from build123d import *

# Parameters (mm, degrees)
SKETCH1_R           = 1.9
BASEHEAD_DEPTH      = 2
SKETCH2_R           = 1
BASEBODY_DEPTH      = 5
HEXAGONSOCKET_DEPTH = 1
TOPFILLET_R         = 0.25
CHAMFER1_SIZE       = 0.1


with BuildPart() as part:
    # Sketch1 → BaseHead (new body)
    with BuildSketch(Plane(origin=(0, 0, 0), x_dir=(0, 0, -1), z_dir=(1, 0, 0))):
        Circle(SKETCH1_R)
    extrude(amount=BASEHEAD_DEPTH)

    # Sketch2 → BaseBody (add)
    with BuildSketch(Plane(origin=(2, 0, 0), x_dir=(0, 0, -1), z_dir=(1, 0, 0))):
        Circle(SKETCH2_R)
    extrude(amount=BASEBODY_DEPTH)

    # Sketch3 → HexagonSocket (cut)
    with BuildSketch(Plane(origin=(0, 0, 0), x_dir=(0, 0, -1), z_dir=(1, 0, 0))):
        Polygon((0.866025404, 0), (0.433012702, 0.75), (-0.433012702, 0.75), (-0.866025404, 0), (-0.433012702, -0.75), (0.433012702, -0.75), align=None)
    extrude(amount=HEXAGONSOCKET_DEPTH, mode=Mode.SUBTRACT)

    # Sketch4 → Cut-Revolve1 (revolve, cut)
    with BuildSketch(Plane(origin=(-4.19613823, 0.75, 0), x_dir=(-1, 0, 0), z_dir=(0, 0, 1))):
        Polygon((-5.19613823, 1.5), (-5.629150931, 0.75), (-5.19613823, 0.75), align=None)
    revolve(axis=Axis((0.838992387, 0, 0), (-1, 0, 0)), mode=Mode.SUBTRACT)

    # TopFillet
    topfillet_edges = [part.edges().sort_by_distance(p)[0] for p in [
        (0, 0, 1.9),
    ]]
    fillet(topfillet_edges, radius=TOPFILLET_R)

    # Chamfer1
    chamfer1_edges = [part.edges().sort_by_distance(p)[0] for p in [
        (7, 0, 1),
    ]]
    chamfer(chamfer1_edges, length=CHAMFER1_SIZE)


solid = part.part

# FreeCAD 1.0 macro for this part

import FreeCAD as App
import Part
import Sketcher
Q = App.Units.Quantity


def edges_at(feature, points):
    """Names of the edges that pass closest to the given points."""
    edges = feature.Shape.Edges
    near = lambda p: min(range(len(edges)), key=lambda i: edges[i].distToShape(Part.Vertex(*p))[0])
    return sorted({f"Edge{near(p) + 1}" for p in points})


def add_polygon(sketch, points):
    """Adds a closed chain of lines whose ends are joined by coincident constraints."""
    first, n = sketch.GeometryCount, len(points)
    for a, b in zip(points, points[1:] + points[:1]):
        sketch.addGeometry(Part.LineSegment(App.Vector(*a, 0), App.Vector(*b, 0)), False)
    for i in range(n):
        sketch.addConstraint(Sketcher.Constraint("Coincident", first + i, 2, first + (i + 1) % n, 1))

doc = App.newDocument("Part")
body = doc.addObject("PartDesign::Body", "Body")

# Sketch on YZ plane
sketch1 = body.newObject("Sketcher::SketchObject", "Sketch")
sketch1.AttachmentSupport = (doc.getObject("YZ_Plane"), [""])
sketch1.MapMode = "FlatFace"
sketch1.addGeometry(Part.Circle(App.Vector(0, 0, 0), App.Vector(0, 0, 1), 1.9), False)
sketch1.addConstraint(Sketcher.Constraint("Coincident", 0, 3, -1, 1))
sketch1.addConstraint(Sketcher.Constraint("Diameter", 0, Q("3.8 mm")))
pad1 = body.newObject("PartDesign::Pad", "Pad")
pad1.Profile = sketch1
pad1.Length = 2

# Sketch on YZ plane
sketch2 = body.newObject("Sketcher::SketchObject", "Sketch001")
sketch2.AttachmentSupport = (doc.getObject("YZ_Plane"), [""])
sketch2.MapMode = "FlatFace"
sketch2.AttachmentOffset = App.Placement(App.Vector(0, 0, 2), App.Rotation())
sketch2.addGeometry(Part.Circle(App.Vector(0, 0, 0), App.Vector(0, 0, 1), 1), False)
sketch2.addConstraint(Sketcher.Constraint("Coincident", 0, 3, -1, 1))
sketch2.addConstraint(Sketcher.Constraint("Diameter", 0, Q("2 mm")))
pad2 = body.newObject("PartDesign::Pad", "Pad001")
pad2.Profile = sketch2
pad2.Length = 5

# Sketch on YZ plane
sketch3 = body.newObject("Sketcher::SketchObject", "Sketch002")
sketch3.AttachmentSupport = (doc.getObject("YZ_Plane"), [""])
sketch3.MapMode = "FlatFace"
add_polygon(sketch3, [(0, -0.9), (0.8, -0.4), (0.8, 0.4), (0, 0.9), (-0.8, 0.4), (-0.8, -0.4)])  # lines 0-5
sketch3.addConstraint(Sketcher.Constraint("Vertical", 1))
sketch3.addConstraint(Sketcher.Constraint("Vertical", 4))
sketch3.addConstraint(Sketcher.Constraint("Symmetric", 0, 2, 3, 2, -1, 1))
sketch3.addConstraint(Sketcher.Constraint("Symmetric", 2, 2, 5, 2, -1, 1))
sketch3.addConstraint(Sketcher.Constraint("PointOnObject", 2, 2, -2))
sketch3.addConstraint(Sketcher.Constraint("Parallel", 2, 5))
sketch3.addConstraint(Sketcher.Constraint("Horizontal", 1, 2, 3, 2))
sketch3.addConstraint(Sketcher.Constraint("Angle", 0, Q("30 deg")))
sketch3.addConstraint(Sketcher.Constraint("DistanceX", 3, 2, 1, 2, Q("1.5 mm")))
sketch3.addConstraint(Sketcher.Constraint("DistanceY", 1, 1, 1, 2, Q("0.866025 mm")))
pocket1 = body.newObject("PartDesign::Pocket", "Pocket")
pocket1.Profile = sketch3
pocket1.Length = 1
pocket1.Reversed = True

# Sketch on XY plane
sketch4 = body.newObject("Sketcher::SketchObject", "Sketch003")
sketch4.AttachmentSupport = (doc.getObject("XY_Plane"), [""])
sketch4.MapMode = "FlatFace"
add_polygon(sketch4, [(1, -0.75), (1.43, 0), (1, 0)])  # lines 0-2
sketch4.addConstraint(Sketcher.Constraint("Horizontal", 1))
sketch4.addConstraint(Sketcher.Constraint("Vertical", 2))
sketch4.addConstraint(Sketcher.Constraint("PointOnObject", 0, 2, -1))
sketch4.addConstraint(Sketcher.Constraint("Angle", 0, Q("60 deg")))
sketch4.addConstraint(Sketcher.Constraint("DistanceX", -1, 1, 1, 2, Q("1 mm")))
sketch4.addConstraint(Sketcher.Constraint("DistanceY", 2, 2, 2, 1, Q("0.75 mm")))
groove = body.newObject("PartDesign::Groove", "Groove")
groove.Profile = sketch4
groove.ReferenceAxis = (sketch4, ["H_Axis"])
groove.Angle = 360
doc.recompute()

fillet = body.newObject("PartDesign::Fillet", "Fillet")
fillet.Base = (groove, edges_at(groove, [(0, 0, 1.9)]))
fillet.Radius = 0.25
doc.recompute()

chamfer = body.newObject("PartDesign::Chamfer", "Chamfer")
chamfer.Base = (fillet, edges_at(fillet, [(7, 0, 1)]))
chamfer.Size = 0.1

doc.recompute()
